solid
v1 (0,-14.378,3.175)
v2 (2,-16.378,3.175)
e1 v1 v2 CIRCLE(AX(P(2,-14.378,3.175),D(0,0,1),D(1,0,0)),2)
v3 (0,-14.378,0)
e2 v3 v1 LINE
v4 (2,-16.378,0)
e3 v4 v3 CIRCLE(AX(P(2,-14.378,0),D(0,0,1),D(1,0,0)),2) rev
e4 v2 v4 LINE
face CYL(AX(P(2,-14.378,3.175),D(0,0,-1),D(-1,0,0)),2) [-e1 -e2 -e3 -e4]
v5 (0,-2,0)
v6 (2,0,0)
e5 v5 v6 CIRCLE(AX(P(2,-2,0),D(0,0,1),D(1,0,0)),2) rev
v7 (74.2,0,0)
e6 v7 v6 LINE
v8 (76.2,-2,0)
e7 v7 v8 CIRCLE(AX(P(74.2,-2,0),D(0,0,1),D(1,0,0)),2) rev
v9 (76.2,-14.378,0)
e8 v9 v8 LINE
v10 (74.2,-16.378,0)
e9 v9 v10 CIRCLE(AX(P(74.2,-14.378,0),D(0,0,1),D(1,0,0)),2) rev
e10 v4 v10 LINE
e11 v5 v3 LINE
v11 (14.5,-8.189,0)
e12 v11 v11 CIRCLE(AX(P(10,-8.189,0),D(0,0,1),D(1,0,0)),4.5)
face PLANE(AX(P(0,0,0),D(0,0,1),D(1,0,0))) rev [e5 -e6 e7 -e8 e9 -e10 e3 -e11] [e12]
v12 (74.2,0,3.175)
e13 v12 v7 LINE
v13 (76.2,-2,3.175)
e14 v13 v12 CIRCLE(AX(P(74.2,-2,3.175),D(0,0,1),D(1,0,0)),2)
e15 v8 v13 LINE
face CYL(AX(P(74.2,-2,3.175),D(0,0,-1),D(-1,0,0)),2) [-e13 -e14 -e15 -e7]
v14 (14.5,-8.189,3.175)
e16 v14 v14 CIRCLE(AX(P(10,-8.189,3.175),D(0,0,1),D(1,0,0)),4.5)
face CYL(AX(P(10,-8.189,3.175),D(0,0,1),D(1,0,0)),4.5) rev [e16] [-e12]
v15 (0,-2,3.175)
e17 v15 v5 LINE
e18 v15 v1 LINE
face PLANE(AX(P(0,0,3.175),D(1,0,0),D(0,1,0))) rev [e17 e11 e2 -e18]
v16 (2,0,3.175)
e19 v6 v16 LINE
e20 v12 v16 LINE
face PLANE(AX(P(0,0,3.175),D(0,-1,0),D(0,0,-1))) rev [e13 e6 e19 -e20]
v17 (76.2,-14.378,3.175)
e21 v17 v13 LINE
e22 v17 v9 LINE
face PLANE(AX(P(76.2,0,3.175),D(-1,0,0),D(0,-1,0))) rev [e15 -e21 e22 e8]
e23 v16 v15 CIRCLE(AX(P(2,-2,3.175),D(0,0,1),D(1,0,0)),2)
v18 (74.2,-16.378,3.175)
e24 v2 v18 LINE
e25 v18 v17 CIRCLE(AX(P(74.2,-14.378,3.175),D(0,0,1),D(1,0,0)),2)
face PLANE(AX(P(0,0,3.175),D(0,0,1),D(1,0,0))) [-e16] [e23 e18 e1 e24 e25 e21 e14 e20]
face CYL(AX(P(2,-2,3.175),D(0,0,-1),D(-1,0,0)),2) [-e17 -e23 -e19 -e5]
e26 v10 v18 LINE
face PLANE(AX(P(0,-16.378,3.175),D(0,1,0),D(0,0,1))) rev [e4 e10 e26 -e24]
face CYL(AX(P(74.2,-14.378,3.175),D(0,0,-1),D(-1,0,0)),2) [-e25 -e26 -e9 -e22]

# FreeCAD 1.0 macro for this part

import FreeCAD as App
import Part
import Sketcher
from FreeCAD import Vector


def edges_at(feature, points):
    """Names of the edges that pass closest to the given points."""
    edges = feature.Shape.Edges
    near = lambda p: min(range(len(edges)), key=lambda i: edges[i].distToShape(Part.Vertex(*p))[0])
    return sorted({f"Edge{near(p) + 1}" for p in points})


def add_polygon(sketch, points):
    """Adds a closed chain of lines whose ends are joined by coincident constraints."""
    first, n = sketch.GeometryCount, len(points)
    for a, b in zip(points, points[1:] + points[:1]):
        sketch.addGeometry(Part.LineSegment(App.Vector(*a, 0), App.Vector(*b, 0)), False)
    for i in range(n):
        sketch.addConstraint(Sketcher.Constraint("Coincident", first + i, 2, first + (i + 1) % n, 1))

doc = App.newDocument("Part")
body = doc.addObject("PartDesign::Body", "Body")

# Sketch on XY plane
sketch1 = body.newObject("Sketcher::SketchObject", "Sketch")
sketch1.AttachmentSupport = (doc.getObject("XY_Plane"), [""])
sketch1.MapMode = "FlatFace"
add_polygon(sketch1, [(0, 0), (0, -16), (76, -16), (76, 0)])  # lines 0-3
sketch1.addConstraint([
    Sketcher.Constraint("Vertical", 0),
    Sketcher.Constraint("Horizontal", 1),
    Sketcher.Constraint("Vertical", 2),
    Sketcher.Constraint("Horizontal", 3),
    Sketcher.Constraint("Coincident", 3, 2, -1, 1),
    Sketcher.Constraint("DistanceX", 1, 1, 1, 2, 76.2),
    Sketcher.Constraint("DistanceY", 0, 2, 0, 1, 16.378),
])
pad1 = body.newObject("PartDesign::Pad", "Pad")
pad1.Profile = sketch1
pad1.Length = 3.175
doc.recompute()

fillet = body.newObject("PartDesign::Fillet", "Fillet")
fillet.Base = (pad1, edges_at(pad1, [
    (0, 0, 1.587),
    (76.2, 0, 1.587),
    (76.2, -16.378, 1.587),
    (0, -16.378, 1.587),
]))
fillet.Radius = 2

# Sketch on XY plane
sketch2 = body.newObject("Sketcher::SketchObject", "Sketch001")
sketch2.AttachmentSupport = (doc.getObject("XY_Plane"), [""])
sketch2.MapMode = "FlatFace"
sketch2.AttachmentOffset = App.Placement(Vector(0, 0, 3.175), App.Rotation())
sketch2.addGeometry(Part.Circle(Vector(10, -8.2, 0), Vector(0, 0, 1), 4.5), False)
sketch2.addConstraint([
    Sketcher.Constraint("Diameter", 0, 9.0),
    Sketcher.Constraint("DistanceX", -1, 1, 0, 3, 10.0),
    Sketcher.Constraint("DistanceY", 0, 3, -1, 1, 8.189),
])
doc.recompute()
hole = body.newObject("PartDesign::Hole", "Hole")
hole.Profile = sketch2
hole.ThreadType = "None"
hole.Diameter = 9
hole.DepthType = "ThroughAll"

doc.recompute()
